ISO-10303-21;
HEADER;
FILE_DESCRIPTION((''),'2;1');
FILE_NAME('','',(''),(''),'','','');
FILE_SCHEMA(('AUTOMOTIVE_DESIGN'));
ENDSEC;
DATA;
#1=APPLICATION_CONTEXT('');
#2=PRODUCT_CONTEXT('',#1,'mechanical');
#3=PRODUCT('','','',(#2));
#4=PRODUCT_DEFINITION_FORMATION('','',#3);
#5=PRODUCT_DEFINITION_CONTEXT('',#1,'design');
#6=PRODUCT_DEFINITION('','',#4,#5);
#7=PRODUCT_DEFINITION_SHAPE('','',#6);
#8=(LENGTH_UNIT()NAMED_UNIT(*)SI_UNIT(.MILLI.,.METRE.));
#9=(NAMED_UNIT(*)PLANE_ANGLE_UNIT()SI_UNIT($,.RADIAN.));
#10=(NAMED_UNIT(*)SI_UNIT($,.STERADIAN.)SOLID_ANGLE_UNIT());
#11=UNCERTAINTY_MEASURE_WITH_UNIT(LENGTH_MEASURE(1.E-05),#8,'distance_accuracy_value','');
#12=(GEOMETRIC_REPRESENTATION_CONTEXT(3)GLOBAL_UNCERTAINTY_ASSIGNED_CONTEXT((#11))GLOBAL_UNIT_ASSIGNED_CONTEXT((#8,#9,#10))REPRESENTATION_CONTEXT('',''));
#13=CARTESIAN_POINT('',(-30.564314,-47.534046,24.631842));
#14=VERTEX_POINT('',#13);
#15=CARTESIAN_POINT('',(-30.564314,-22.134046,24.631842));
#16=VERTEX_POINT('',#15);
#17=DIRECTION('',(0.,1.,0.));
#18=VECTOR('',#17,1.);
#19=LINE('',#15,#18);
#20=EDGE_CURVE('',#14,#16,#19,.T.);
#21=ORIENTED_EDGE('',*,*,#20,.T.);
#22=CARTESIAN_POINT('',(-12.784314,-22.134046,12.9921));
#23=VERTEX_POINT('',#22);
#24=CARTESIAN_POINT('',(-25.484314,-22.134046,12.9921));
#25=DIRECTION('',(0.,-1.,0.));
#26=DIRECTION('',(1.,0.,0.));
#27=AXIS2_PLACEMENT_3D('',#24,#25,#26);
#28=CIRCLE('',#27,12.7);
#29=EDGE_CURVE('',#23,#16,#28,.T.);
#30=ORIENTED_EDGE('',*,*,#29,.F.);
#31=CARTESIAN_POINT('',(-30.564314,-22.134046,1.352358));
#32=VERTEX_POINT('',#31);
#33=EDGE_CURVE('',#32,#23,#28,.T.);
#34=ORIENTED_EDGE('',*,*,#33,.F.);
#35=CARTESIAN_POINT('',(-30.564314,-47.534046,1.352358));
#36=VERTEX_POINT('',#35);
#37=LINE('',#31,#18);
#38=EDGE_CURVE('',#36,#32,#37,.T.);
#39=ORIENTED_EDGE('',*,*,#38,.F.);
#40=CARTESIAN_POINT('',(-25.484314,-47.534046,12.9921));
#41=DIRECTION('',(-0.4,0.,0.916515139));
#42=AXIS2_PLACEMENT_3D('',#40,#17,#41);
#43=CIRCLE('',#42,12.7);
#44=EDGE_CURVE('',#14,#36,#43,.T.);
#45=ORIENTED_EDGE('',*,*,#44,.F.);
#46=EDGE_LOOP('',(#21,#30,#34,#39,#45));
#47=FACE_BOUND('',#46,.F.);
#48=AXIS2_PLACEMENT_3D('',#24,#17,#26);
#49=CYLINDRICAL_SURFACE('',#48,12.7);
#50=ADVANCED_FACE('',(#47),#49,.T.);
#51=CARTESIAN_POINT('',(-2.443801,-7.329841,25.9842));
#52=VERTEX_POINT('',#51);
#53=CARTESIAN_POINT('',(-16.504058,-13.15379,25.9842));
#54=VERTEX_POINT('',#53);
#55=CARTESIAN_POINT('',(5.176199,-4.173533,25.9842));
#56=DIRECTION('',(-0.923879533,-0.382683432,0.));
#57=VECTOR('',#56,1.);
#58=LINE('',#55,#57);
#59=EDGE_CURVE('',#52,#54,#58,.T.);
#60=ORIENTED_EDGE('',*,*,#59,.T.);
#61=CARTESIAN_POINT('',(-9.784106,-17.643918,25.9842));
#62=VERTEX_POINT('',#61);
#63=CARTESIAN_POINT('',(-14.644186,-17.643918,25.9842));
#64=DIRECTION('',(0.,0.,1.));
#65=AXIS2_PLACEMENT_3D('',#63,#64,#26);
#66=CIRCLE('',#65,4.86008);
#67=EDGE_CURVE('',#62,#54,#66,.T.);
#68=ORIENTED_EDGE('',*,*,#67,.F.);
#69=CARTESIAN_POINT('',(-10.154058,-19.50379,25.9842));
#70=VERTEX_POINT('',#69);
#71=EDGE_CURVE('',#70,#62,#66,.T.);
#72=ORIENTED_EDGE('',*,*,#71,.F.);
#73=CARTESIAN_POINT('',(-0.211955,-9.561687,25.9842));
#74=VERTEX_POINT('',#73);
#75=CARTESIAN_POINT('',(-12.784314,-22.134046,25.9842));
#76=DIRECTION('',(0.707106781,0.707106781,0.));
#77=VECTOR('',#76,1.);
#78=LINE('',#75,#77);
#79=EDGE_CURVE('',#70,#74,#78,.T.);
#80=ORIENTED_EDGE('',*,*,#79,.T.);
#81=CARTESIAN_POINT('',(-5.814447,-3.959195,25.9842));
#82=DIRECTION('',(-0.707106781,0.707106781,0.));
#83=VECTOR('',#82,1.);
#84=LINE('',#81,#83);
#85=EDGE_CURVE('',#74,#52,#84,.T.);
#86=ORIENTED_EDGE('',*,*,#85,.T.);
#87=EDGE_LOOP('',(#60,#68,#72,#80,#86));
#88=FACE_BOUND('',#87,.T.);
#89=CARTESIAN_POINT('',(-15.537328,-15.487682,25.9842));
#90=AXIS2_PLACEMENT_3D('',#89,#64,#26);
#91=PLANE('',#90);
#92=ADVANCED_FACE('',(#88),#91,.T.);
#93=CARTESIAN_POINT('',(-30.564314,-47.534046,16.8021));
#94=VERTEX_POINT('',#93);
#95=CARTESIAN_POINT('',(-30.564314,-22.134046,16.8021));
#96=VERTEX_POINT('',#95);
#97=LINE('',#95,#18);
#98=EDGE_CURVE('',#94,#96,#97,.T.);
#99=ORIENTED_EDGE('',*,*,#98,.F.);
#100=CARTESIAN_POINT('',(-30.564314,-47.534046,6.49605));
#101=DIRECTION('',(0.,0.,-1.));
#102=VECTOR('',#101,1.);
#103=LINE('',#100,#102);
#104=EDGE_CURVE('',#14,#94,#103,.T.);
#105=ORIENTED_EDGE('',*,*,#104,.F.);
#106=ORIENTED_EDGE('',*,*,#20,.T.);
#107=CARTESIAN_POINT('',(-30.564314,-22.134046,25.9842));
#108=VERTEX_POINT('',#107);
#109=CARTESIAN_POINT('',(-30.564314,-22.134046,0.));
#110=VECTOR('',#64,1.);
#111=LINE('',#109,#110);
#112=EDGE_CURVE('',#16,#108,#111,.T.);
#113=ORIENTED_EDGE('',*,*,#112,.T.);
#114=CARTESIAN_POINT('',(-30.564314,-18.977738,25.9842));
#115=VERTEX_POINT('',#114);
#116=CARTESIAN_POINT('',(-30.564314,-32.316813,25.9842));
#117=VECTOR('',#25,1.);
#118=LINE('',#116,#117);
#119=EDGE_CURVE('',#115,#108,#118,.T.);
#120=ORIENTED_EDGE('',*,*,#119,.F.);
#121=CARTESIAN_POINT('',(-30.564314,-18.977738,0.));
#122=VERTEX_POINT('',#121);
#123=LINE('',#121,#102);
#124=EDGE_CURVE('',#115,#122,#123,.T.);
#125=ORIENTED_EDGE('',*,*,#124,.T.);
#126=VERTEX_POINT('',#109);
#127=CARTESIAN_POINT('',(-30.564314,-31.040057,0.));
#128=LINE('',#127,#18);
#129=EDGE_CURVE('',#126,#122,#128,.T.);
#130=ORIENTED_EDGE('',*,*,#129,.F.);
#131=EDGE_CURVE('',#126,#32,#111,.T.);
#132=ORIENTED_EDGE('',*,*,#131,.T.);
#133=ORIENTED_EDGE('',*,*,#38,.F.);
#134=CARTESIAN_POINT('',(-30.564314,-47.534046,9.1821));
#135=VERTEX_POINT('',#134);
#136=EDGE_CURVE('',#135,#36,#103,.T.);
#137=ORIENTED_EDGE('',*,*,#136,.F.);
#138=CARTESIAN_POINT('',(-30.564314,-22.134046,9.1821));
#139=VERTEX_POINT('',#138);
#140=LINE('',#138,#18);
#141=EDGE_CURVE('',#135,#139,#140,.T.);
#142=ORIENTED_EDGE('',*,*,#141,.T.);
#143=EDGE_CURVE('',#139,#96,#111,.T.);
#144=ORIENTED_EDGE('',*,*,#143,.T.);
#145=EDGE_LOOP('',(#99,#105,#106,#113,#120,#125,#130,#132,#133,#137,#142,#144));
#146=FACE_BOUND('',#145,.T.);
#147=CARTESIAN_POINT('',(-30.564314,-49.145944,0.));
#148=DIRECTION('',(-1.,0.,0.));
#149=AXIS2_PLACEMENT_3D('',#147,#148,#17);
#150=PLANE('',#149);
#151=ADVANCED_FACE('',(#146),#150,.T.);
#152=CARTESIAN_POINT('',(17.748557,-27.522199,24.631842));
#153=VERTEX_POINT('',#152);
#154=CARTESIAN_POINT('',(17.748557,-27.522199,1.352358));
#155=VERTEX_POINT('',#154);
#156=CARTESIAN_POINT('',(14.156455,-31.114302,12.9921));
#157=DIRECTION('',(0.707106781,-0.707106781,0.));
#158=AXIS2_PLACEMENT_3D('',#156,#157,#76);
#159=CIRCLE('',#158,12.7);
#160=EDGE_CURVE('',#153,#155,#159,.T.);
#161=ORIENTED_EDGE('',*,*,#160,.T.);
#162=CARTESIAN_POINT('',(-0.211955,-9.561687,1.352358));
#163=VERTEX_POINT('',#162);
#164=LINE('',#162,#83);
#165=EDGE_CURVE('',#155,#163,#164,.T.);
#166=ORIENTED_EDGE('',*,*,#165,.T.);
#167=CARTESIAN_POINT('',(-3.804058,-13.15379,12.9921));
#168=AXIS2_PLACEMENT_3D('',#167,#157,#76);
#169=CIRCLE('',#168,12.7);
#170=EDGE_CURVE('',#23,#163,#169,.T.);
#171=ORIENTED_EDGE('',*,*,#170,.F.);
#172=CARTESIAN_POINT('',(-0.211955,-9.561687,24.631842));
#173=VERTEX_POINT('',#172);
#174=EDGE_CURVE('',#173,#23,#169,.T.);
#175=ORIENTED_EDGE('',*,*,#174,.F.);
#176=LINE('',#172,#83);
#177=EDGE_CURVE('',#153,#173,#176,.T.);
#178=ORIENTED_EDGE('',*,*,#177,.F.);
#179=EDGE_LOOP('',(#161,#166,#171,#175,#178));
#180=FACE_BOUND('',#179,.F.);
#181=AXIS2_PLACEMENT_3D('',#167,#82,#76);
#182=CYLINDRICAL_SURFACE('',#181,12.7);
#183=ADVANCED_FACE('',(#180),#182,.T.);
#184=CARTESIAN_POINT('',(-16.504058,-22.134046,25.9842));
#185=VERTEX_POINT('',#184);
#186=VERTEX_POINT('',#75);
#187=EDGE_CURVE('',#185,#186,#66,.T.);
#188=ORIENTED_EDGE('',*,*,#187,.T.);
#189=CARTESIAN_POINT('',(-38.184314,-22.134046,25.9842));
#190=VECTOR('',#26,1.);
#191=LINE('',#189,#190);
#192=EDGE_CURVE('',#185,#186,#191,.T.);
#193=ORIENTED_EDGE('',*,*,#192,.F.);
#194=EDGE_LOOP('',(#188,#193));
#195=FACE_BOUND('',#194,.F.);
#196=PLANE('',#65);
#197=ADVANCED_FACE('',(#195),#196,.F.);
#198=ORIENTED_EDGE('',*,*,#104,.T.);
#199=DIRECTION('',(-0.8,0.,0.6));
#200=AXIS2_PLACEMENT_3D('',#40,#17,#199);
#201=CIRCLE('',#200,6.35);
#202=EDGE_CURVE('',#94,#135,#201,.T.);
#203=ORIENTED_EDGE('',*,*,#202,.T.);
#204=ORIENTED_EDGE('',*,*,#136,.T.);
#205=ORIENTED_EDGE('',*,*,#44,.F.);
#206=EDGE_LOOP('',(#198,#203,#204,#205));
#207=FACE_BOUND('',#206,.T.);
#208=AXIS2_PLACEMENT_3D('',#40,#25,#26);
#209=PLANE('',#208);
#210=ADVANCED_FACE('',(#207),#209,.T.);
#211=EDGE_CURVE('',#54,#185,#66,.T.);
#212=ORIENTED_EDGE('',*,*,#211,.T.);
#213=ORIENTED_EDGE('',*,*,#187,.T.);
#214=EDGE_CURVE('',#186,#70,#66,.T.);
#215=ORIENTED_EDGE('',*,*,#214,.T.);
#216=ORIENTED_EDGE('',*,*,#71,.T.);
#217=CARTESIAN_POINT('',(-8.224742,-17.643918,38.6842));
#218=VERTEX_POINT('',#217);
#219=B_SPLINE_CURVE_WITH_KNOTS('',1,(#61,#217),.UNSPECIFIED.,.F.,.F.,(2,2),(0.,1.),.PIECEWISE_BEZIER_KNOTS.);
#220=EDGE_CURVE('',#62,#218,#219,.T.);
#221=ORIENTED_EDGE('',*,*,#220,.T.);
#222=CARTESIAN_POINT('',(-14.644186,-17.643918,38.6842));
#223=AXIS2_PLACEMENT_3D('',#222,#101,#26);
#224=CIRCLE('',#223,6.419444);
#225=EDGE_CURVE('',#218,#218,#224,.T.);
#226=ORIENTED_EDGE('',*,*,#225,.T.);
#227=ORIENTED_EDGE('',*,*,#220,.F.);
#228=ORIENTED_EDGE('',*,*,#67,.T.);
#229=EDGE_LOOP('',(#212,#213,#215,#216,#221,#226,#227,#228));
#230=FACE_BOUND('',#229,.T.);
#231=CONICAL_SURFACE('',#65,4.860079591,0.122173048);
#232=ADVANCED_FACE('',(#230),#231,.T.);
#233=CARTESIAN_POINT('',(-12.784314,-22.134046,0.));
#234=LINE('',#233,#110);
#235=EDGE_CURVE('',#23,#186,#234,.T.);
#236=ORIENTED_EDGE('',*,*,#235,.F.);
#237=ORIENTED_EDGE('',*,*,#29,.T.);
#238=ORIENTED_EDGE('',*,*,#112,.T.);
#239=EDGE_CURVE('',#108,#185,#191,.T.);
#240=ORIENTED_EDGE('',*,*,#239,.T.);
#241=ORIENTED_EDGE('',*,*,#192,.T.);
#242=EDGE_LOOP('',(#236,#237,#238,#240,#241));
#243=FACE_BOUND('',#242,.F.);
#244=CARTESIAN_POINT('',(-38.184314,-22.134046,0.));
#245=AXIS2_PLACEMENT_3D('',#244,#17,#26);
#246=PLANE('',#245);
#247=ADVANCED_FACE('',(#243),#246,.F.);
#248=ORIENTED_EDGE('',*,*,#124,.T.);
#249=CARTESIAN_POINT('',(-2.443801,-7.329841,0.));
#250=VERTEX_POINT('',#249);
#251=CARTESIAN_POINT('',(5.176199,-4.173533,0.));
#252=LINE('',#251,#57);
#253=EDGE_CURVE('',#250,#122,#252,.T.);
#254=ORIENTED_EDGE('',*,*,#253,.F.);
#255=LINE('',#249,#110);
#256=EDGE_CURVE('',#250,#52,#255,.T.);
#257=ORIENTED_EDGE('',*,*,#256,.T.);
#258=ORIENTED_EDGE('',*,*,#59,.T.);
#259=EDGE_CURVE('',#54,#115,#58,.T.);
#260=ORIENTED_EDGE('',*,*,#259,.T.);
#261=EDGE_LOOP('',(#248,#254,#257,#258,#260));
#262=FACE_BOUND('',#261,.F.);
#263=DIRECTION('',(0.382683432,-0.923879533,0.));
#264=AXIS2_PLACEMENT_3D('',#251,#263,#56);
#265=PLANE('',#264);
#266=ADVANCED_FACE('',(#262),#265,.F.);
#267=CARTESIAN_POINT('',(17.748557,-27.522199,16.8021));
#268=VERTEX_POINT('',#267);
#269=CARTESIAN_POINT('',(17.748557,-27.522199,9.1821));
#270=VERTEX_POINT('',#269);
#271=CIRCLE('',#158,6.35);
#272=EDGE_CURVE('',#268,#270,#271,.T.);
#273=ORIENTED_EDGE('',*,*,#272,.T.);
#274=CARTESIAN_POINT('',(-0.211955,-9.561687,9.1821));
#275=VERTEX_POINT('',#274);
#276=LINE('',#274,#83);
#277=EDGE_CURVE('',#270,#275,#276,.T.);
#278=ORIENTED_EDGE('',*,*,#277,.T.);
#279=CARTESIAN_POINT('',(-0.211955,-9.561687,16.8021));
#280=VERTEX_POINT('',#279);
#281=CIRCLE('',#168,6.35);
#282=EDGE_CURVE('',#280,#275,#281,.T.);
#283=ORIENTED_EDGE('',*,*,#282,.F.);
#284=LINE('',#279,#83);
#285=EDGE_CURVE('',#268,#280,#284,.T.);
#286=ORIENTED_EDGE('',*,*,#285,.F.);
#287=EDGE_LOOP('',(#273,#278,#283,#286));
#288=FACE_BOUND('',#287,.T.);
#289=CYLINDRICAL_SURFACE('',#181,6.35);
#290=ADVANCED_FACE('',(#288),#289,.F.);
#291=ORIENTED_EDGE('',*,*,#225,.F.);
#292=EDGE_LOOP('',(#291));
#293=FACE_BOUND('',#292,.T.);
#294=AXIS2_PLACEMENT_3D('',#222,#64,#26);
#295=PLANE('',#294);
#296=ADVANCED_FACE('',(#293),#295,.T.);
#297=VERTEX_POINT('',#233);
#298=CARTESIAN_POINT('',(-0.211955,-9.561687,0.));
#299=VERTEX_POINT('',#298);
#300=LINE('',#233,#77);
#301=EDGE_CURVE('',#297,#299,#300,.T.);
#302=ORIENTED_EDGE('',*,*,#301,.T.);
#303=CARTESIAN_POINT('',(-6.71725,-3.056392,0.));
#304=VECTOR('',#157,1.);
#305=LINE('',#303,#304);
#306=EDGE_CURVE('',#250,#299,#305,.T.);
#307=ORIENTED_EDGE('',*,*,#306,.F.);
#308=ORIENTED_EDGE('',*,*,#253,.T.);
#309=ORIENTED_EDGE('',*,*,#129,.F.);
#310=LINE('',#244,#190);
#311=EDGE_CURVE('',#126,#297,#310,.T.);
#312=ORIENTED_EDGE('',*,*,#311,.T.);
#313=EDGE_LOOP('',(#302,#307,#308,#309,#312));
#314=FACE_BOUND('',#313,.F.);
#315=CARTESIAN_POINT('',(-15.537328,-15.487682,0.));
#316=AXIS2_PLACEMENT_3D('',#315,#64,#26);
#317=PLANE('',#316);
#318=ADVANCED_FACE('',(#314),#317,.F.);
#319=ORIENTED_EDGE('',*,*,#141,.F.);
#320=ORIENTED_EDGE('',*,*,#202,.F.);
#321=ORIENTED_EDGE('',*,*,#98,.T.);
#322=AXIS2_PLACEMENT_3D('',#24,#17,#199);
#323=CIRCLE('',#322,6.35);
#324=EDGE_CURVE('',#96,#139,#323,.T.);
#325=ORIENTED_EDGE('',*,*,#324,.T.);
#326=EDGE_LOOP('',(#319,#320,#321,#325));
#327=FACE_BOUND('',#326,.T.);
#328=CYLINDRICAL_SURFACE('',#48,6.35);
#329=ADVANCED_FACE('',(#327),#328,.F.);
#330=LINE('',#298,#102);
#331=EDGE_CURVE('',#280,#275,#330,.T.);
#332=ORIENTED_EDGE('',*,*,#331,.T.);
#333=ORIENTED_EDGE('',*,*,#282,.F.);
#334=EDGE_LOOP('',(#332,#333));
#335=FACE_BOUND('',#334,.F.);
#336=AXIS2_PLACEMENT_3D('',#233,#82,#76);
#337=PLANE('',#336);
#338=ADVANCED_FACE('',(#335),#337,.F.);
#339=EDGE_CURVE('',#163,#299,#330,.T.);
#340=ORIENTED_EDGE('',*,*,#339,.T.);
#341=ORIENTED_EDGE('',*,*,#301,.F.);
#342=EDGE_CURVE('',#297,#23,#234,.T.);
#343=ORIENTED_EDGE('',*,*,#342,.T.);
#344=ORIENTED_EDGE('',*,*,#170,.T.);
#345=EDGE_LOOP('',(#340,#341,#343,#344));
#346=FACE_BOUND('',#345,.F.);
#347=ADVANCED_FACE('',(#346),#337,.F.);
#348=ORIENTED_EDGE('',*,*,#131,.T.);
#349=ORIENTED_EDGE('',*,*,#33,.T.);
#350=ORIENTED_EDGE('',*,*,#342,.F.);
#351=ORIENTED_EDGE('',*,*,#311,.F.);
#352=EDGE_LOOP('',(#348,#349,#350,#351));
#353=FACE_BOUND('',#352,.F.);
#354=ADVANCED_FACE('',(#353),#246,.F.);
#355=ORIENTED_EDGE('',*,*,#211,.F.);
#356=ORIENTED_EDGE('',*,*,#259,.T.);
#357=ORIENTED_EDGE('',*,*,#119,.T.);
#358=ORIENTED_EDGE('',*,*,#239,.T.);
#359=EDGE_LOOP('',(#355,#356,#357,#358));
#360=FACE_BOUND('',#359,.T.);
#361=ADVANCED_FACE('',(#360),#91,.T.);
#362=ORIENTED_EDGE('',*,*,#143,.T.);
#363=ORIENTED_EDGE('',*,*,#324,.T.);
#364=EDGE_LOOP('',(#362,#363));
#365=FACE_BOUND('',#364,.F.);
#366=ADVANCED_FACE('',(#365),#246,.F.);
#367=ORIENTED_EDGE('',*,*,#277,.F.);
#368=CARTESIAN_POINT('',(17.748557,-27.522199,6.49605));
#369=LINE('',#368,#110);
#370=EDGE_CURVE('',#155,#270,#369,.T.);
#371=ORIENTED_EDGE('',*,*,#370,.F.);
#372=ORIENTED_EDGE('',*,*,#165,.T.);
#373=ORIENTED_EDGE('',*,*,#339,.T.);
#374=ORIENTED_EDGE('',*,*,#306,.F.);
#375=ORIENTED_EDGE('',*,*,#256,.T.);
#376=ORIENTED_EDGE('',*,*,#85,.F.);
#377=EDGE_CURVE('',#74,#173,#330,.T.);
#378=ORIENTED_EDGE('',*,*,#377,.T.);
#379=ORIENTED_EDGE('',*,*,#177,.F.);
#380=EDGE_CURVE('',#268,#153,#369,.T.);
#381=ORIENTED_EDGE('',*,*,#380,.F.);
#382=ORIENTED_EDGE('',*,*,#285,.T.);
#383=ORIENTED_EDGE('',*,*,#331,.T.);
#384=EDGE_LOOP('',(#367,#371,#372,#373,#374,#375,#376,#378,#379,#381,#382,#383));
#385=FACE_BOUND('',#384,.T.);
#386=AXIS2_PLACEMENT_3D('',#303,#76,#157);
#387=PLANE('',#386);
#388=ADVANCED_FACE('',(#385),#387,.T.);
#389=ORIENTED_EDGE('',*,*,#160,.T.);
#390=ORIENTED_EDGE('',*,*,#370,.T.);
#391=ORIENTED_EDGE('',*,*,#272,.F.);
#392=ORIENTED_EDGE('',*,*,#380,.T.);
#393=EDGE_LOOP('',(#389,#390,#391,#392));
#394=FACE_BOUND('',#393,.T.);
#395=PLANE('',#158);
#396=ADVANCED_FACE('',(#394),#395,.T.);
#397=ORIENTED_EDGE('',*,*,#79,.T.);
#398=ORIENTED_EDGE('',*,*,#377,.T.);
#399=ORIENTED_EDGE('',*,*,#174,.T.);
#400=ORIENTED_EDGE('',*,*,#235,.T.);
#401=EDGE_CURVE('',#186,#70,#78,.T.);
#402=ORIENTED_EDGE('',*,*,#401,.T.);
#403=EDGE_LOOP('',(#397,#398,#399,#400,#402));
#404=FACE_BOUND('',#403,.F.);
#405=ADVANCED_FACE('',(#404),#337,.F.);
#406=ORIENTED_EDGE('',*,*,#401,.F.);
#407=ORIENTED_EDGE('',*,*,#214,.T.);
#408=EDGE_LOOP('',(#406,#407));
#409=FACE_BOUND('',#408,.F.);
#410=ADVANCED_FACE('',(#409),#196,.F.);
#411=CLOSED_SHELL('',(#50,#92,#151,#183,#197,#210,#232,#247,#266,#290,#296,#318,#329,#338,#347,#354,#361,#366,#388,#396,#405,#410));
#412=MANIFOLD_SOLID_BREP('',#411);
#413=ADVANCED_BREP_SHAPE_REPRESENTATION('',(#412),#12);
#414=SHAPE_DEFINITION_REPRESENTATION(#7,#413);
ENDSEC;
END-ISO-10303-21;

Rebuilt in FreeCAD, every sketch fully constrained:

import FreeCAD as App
import Part
import Sketcher
Q = App.Units.Quantity

doc = App.newDocument("Part")
body = doc.addObject("PartDesign::Body", "Body")

sketch1 = body.newObject("Sketcher::SketchObject", "Sketch")
sketch1.AttachmentSupport = (doc.getObject("XY_Plane"), [""])
sketch1.MapMode = "FlatFace"
sketch1.addGeometry(Part.LineSegment(App.Vector(5, -4, 0), App.Vector(-38, -22, 0)), False)
sketch1.addGeometry(Part.LineSegment(App.Vector(-38, -22, 0), App.Vector(-13, -22, 0)), False)
sketch1.addGeometry(Part.LineSegment(App.Vector(-13, -22, 0), App.Vector(5, -4, 0)), False)
sketch1.addConstraint(Sketcher.Constraint("Coincident", 0, 2, 1, 1))
sketch1.addConstraint(Sketcher.Constraint("Coincident", 1, 2, 2, 1))
sketch1.addConstraint(Sketcher.Constraint("Coincident", 2, 2, 0, 1))
sketch1.addConstraint(Sketcher.Constraint("Horizontal", 1))
sketch1.addConstraint(Sketcher.Constraint("DistanceX", 1, 1, 1, 2, Q("1 in")))
sketch1.addConstraint(Sketcher.Constraint("Distance", 2, Q("1 in")))
sketch1.addConstraint(Sketcher.Constraint("Angle", 2, Q("45 deg")))
sketch1.addConstraint(Sketcher.Constraint("DistanceX", -1, 1, 2, 2, 5.176199))
sketch1.addConstraint(Sketcher.Constraint("DistanceY", 0, 2, -1, 1, 22.134046))
pad1 = body.newObject("PartDesign::Pad", "Pad")
pad1.Profile = sketch1
pad1.Length = Q("1.023 in")

sketch2 = body.newObject("Sketcher::SketchObject", "Sketch001")
sketch2.Placement = App.Placement(App.Vector(4.674866, -4.674866, 0), App.Rotation(App.Vector(0.707106781, 0.707106781, 0), App.Vector(0, 0, 0.999999999), App.Vector(0.707106781, -0.707106781, 0), "ZXY"))
sketch2.addGeometry(Part.Circle(App.Vector(-12, 13, 0), App.Vector(0, 0, 1), 13), False)
sketch2.addGeometry(Part.Circle(App.Vector(-12, 13, 0), App.Vector(0, 0, 1), 6), False)
sketch2.addConstraint(Sketcher.Constraint("Coincident", 1, 3, 0, 3))
sketch2.addConstraint(Sketcher.Constraint("Diameter", 0, Q("1 in")))
sketch2.addConstraint(Sketcher.Constraint("Diameter", 1, Q("0.5 in")))
sketch2.addConstraint(Sketcher.Constraint("DistanceY", -1, 1, 0, 3, Q("0.5115 in")))
sketch2.addConstraint(Sketcher.Constraint("DistanceX", 0, 3, -1, 1, 11.991009))
pad2 = body.newObject("PartDesign::Pad", "Pad001")
pad2.Profile = sketch2
pad2.Length = Q("1 in")

sketch3 = body.newObject("Sketcher::SketchObject", "Sketch002")
sketch3.AttachmentSupport = (doc.getObject("XZ_Plane"), [""])
sketch3.MapMode = "FlatFace"
sketch3.AttachmentOffset = App.Placement(App.Vector(0, 0, 22.134046), App.Rotation())
sketch3.addGeometry(Part.Circle(App.Vector(-25, 13, 0), App.Vector(0, 0, 1), 13), False)
sketch3.addGeometry(Part.Circle(App.Vector(-25, 13, 0), App.Vector(0, 0, 1), 6), False)
sketch3.addConstraint(Sketcher.Constraint("Coincident", 1, 3, 0, 3))
sketch3.addConstraint(Sketcher.Constraint("Diameter", 0, Q("1 in")))
sketch3.addConstraint(Sketcher.Constraint("Diameter", 1, Q("0.5 in")))
sketch3.addConstraint(Sketcher.Constraint("DistanceY", -1, 1, 0, 3, Q("0.5115 in")))
sketch3.addConstraint(Sketcher.Constraint("DistanceX", 0, 3, -1, 1, 25.484314))
pad3 = body.newObject("PartDesign::Pad", "Pad002")
pad3.Profile = sketch3
pad3.Length = Q("1 in")

sketch4 = body.newObject("Sketcher::SketchObject", "Sketch003")
sketch4.AttachmentSupport = (doc.getObject("XY_Plane"), [""])
sketch4.MapMode = "FlatFace"
sketch4.AttachmentOffset = App.Placement(App.Vector(0, 0, 1.023 * 25.4), App.Rotation())
sketch4.addGeometry(Part.Circle(App.Vector(-14.6, -17.6, 0), App.Vector(0, 0, 1), 4.9), False)
sketch4.addConstraint(Sketcher.Constraint("Diameter", 0, 9.720159))
sketch4.addConstraint(Sketcher.Constraint("DistanceX", 0, 3, -1, 1, 14.644186))
sketch4.addConstraint(Sketcher.Constraint("DistanceY", 0, 3, -1, 1, 17.643918))
pad4 = body.newObject("PartDesign::Pad", "Pad003")
pad4.Profile = sketch4
pad4.Length = Q("0.5 in")
pad4.TaperAngle = 7

sketch5 = body.newObject("Sketcher::SketchObject", "Sketch004")
sketch5.AttachmentSupport = (doc.getObject("XY_Plane"), [""])
sketch5.MapMode = "FlatFace"
sketch5.addGeometry(Part.LineSegment(App.Vector(-53, -13, 0), App.Vector(-53, -49, 0)), False)
sketch5.addGeometry(Part.LineSegment(App.Vector(-53, -49, 0), App.Vector(-31, -49, 0)), False)
sketch5.addGeometry(Part.LineSegment(App.Vector(-31, -49, 0), App.Vector(-31, -13, 0)), False)
sketch5.addGeometry(Part.LineSegment(App.Vector(-31, -13, 0), App.Vector(-53, -13, 0)), False)
sketch5.addGeometry(Part.LineSegment(App.Vector(35, -13, 0), App.Vector(9, 13, 0)), False)
sketch5.addGeometry(Part.LineSegment(App.Vector(9, 13, 0), App.Vector(-7, -3, 0)), False)
sketch5.addGeometry(Part.LineSegment(App.Vector(-7, -3, 0), App.Vector(19, -29, 0)), False)
sketch5.addGeometry(Part.LineSegment(App.Vector(19, -29, 0), App.Vector(35, -13, 0)), False)
sketch5.addConstraint(Sketcher.Constraint("Coincident", 0, 2, 1, 1))
sketch5.addConstraint(Sketcher.Constraint("Coincident", 1, 2, 2, 1))
sketch5.addConstraint(Sketcher.Constraint("Coincident", 2, 2, 3, 1))
sketch5.addConstraint(Sketcher.Constraint("Coincident", 3, 2, 0, 1))
sketch5.addConstraint(Sketcher.Constraint("Coincident", 4, 2, 5, 1))
sketch5.addConstraint(Sketcher.Constraint("Coincident", 5, 2, 6, 1))
sketch5.addConstraint(Sketcher.Constraint("Coincident", 6, 2, 7, 1))
sketch5.addConstraint(Sketcher.Constraint("Coincident", 7, 2, 4, 1))
sketch5.addConstraint(Sketcher.Constraint("Vertical", 0))
sketch5.addConstraint(Sketcher.Constraint("Horizontal", 1))
sketch5.addConstraint(Sketcher.Constraint("Vertical", 2))
sketch5.addConstraint(Sketcher.Constraint("Horizontal", 3))
sketch5.addConstraint(Sketcher.Constraint("Perpendicular", 4, 5))
sketch5.addConstraint(Sketcher.Constraint("Perpendicular", 5, 6))
sketch5.addConstraint(Sketcher.Constraint("Perpendicular", 6, 7))
sketch5.addConstraint(Sketcher.Constraint("Angle", 4, Q("135 deg")))
sketch5.addConstraint(Sketcher.Constraint("DistanceX", 1, 1, 1, 2, 22.342512))
sketch5.addConstraint(Sketcher.Constraint("DistanceY", 0, 2, 0, 1, 36.211775))
sketch5.addConstraint(Sketcher.Constraint("DistanceY", 2, 2, -1, 1, 12.934169))
sketch5.addConstraint(Sketcher.Constraint("DistanceX", -1, 1, 4, 2, 9.081292))
sketch5.addConstraint(Sketcher.Constraint("DistanceY", -1, 1, 4, 2, 12.74215))
sketch5.addConstraint(Sketcher.Constraint("DistanceX", 5, 2, -1, 1, 6.71725))
sketch5.addConstraint(Sketcher.Constraint("DistanceX", -1, 1, 6, 2, 18.888342))
sketch5.addConstraint(Sketcher.Constraint("DistanceX", 0, 2, -1, 1, 52.906826))
pocket1 = body.newObject("PartDesign::Pocket", "Pocket")
pocket1.Profile = sketch5
pocket1.Type = "ThroughAll"
pocket1.Reversed = True

doc.recompute()
